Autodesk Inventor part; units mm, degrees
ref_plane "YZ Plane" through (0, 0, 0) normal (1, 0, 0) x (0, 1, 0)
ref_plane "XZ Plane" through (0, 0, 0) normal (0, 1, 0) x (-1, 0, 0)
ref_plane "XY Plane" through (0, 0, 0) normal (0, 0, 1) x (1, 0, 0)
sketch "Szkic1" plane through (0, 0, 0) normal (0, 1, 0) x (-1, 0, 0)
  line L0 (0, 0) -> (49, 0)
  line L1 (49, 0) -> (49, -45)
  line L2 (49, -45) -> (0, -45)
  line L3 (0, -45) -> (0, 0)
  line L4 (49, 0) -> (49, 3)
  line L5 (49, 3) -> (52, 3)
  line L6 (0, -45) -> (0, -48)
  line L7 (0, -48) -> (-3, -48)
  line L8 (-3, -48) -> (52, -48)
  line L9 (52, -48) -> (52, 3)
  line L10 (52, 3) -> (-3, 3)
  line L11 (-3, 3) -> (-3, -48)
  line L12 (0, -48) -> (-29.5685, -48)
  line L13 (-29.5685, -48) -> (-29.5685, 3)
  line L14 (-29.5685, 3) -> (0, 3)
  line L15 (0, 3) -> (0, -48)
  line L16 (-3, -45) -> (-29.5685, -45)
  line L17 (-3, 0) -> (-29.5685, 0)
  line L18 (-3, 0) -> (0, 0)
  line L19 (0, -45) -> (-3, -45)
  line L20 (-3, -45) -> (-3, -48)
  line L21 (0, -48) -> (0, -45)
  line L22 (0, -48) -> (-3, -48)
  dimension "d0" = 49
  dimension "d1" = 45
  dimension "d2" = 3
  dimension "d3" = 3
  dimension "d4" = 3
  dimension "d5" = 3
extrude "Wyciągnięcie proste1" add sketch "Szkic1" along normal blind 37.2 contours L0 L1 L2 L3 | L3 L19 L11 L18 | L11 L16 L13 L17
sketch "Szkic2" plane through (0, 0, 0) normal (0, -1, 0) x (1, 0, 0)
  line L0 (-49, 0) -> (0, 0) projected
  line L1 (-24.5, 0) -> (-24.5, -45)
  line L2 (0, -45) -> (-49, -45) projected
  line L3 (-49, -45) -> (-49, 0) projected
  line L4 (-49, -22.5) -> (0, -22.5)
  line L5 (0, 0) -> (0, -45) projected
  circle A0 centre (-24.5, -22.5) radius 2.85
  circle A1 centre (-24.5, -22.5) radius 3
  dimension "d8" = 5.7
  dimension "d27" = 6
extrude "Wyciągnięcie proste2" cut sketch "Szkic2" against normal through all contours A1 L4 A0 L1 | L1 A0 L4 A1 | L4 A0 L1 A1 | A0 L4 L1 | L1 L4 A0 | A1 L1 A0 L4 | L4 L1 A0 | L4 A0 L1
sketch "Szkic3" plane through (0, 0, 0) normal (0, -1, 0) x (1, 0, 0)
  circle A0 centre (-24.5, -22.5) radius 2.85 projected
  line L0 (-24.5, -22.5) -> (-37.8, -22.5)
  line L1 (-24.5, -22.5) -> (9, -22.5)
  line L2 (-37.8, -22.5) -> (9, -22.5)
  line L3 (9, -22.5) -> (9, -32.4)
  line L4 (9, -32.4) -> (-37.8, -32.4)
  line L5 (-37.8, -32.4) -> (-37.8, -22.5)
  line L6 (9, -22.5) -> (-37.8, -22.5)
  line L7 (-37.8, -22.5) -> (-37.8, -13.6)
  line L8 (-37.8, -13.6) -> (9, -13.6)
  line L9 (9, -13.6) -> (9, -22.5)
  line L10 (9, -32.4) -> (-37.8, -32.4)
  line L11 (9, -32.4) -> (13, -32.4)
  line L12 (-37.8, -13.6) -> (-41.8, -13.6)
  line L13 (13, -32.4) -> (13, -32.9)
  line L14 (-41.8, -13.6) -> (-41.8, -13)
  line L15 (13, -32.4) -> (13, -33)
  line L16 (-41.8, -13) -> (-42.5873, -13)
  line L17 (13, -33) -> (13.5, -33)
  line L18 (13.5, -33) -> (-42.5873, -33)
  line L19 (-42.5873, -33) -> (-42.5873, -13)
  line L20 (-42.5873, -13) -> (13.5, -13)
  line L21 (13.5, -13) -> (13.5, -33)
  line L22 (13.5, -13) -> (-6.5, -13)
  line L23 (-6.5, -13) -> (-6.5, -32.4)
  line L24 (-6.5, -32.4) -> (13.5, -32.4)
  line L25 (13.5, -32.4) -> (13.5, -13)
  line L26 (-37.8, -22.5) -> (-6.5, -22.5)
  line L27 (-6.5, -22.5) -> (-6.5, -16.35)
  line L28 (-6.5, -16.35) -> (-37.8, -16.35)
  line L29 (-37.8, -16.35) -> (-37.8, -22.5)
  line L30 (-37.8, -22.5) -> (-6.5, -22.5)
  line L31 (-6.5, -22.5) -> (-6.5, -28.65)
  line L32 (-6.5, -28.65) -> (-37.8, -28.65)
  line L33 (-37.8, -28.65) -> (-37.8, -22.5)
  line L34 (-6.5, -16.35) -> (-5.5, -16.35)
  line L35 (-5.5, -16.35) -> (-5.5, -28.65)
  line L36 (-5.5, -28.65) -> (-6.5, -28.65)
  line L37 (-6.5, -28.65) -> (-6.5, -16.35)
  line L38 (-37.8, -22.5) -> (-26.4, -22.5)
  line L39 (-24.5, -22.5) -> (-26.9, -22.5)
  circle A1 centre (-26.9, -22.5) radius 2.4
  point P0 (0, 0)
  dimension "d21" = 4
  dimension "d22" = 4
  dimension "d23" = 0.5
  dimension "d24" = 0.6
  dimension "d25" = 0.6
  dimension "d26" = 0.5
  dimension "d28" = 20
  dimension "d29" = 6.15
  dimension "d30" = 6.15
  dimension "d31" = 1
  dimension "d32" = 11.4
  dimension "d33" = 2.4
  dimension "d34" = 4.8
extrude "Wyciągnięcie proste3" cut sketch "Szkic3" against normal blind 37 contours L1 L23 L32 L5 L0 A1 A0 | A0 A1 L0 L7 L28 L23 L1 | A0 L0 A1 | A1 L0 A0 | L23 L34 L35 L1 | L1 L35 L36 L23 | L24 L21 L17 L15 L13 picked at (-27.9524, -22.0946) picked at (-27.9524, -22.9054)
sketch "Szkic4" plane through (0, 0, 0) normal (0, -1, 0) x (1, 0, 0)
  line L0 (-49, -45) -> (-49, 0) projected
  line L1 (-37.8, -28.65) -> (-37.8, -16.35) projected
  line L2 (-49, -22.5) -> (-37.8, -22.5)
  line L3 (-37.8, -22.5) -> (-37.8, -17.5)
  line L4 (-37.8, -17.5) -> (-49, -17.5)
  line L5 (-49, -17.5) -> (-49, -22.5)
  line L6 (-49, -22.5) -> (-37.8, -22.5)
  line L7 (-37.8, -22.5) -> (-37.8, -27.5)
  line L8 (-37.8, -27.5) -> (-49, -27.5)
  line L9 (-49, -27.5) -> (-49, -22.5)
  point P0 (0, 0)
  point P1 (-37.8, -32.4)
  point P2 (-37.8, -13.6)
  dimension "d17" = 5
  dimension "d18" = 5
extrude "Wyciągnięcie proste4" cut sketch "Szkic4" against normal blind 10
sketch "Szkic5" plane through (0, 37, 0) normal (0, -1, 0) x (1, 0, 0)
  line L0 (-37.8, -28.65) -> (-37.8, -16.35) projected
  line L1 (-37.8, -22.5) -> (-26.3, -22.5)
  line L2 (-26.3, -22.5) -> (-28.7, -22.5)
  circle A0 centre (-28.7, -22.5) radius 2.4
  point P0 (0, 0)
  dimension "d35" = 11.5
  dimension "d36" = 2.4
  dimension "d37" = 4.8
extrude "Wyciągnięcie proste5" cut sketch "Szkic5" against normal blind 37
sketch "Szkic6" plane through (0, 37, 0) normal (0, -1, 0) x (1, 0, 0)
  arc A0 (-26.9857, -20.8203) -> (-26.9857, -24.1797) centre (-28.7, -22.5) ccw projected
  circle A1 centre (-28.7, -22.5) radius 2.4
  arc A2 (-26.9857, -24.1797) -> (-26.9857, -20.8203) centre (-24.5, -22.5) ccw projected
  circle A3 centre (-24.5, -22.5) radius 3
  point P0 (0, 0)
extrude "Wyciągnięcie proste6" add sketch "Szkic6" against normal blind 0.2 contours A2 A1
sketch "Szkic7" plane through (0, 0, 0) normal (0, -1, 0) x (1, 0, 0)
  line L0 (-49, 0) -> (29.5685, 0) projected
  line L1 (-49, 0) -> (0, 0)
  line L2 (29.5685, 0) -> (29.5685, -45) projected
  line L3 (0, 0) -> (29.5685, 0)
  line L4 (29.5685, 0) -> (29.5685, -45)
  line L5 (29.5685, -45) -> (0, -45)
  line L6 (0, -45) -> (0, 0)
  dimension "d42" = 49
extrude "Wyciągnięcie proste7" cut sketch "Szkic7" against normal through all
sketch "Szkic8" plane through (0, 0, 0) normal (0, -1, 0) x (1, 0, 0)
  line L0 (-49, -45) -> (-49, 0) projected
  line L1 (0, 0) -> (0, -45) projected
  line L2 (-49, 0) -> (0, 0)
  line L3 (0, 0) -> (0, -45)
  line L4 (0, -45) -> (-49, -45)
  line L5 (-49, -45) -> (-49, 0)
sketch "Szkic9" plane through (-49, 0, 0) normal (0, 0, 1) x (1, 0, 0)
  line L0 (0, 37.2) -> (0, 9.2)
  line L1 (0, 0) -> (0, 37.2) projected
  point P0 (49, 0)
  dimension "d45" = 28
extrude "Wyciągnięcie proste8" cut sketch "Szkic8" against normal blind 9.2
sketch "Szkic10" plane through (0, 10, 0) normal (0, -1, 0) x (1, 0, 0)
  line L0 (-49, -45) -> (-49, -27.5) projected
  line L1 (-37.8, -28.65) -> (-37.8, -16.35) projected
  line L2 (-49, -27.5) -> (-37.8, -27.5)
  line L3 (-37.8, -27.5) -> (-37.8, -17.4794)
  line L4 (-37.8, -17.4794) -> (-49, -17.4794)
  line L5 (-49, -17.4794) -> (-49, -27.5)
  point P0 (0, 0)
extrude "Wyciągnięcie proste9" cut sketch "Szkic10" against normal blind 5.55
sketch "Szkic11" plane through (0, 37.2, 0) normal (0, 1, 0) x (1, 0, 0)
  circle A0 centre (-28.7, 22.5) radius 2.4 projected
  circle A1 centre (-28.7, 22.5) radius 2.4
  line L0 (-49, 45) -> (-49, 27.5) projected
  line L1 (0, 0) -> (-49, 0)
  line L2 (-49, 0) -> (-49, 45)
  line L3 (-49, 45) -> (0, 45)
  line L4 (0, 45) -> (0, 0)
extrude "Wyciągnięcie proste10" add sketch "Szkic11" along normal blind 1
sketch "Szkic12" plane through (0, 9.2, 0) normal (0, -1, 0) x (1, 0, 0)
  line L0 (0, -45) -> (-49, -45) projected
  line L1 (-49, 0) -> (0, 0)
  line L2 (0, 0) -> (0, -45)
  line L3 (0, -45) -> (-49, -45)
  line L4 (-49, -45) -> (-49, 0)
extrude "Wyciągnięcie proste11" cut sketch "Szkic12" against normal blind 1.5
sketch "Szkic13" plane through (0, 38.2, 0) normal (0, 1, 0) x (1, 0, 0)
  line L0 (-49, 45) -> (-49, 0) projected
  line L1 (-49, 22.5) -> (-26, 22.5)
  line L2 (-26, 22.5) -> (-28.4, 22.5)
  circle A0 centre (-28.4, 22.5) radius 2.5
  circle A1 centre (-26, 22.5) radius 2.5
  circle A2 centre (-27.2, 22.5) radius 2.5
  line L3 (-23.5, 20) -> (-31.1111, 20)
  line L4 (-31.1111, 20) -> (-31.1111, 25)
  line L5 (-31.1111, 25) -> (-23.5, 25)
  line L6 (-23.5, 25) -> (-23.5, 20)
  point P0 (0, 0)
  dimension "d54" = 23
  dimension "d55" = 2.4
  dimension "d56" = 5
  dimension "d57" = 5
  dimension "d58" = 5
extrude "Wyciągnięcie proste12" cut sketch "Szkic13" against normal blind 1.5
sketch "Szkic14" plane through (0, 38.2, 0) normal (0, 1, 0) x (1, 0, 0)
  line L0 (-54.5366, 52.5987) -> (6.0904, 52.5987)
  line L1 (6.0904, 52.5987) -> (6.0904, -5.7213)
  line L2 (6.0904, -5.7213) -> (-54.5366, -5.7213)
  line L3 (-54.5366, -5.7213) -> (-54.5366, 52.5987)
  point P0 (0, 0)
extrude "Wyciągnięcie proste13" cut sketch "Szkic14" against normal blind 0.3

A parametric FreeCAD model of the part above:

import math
import FreeCAD as App
import Part
import Sketcher


def add_polygon(sketch, points):
    """Adds a closed chain of lines whose ends are joined by coincident constraints."""
    first, n = sketch.GeometryCount, len(points)
    for a, b in zip(points, points[1:] + points[:1]):
        sketch.addGeometry(Part.LineSegment(App.Vector(*a, 0), App.Vector(*b, 0)), False)
    for i in range(n):
        sketch.addConstraint(Sketcher.Constraint("Coincident", first + i, 2, first + (i + 1) % n, 1))

doc = App.newDocument("Part")
body = doc.addObject("PartDesign::Body", "Body")

# Sketch on XZ plane
sketch1 = body.newObject("Sketcher::SketchObject", "Sketch")
sketch1.AttachmentSupport = (doc.getObject("XZ_Plane"), [""])
sketch1.MapMode = "FlatFace"
add_polygon(sketch1, [(-49, 0), (29.5685, 0), (29.5685, -45), (-49, -45)])  # lines 0-3
sketch1.addConstraint([
    Sketcher.Constraint("Horizontal", 0),
    Sketcher.Constraint("Vertical", 1),
    Sketcher.Constraint("Horizontal", 2),
    Sketcher.Constraint("Vertical", 3),
    Sketcher.Constraint("PointOnObject", 0, 2, -1),
    Sketcher.Constraint("DistanceY", 1, 2, 1, 1, 45.0),
    Sketcher.Constraint("DistanceX", 2, 2, -1, 1, 49.0),
    Sketcher.Constraint("DistanceX", 0, 1, 0, 2, 78.5685),
])
pad1 = body.newObject("PartDesign::Pad", "Pad")
pad1.Profile = sketch1
pad1.Length = 37.2
pad1.Reversed = True

# Sketch on XZ plane
sketch2 = body.newObject("Sketcher::SketchObject", "Sketch001")
sketch2.AttachmentSupport = (doc.getObject("XZ_Plane"), [""])
sketch2.MapMode = "FlatFace"
sketch2.addGeometry(Part.Circle(App.Vector(-24.5, -22.5, 0), App.Vector(0, 0, 1), 3), False)
sketch2.addConstraint([
    Sketcher.Constraint("Diameter", 0, 6.0),
    Sketcher.Constraint("DistanceX", 0, 3, -1, 1, 24.5),
    Sketcher.Constraint("DistanceY", 0, 3, -1, 1, 22.5),
])
pocket1 = body.newObject("PartDesign::Pocket", "Pocket")
pocket1.Profile = sketch2
pocket1.Type = "ThroughAll"

# Sketch on XZ plane
sketch3 = body.newObject("Sketcher::SketchObject", "Sketch002")
sketch3.AttachmentSupport = (doc.getObject("XZ_Plane"), [""])
sketch3.MapMode = "FlatFace"
add_polygon(sketch3, [(-37.8, -28.65), (-5.5, -28.65), (-5.5, -16.35), (-37.8, -16.35)])  # lines 0-3
sketch3.addGeometry(Part.Circle(App.Vector(-24.5, -22.5, 0), App.Vector(0, 0, 1), 2.85), False)  # 4
add_polygon(sketch3, [(13.5, -32.4), (13, -32.4), (13, -33), (13.5, -33)])  # lines 5-8
sketch3.addConstraint([
    Sketcher.Constraint("Horizontal", 0),
    Sketcher.Constraint("Vertical", 1),
    Sketcher.Constraint("Horizontal", 2),
    Sketcher.Constraint("Vertical", 3),
    Sketcher.Constraint("Horizontal", 5),
    Sketcher.Constraint("Vertical", 6),
    Sketcher.Constraint("Horizontal", 7),
    Sketcher.Constraint("Vertical", 8),
    Sketcher.Constraint("DistanceX", 5, 2, 5, 1, 0.5),
    Sketcher.Constraint("DistanceY", 6, 2, 6, 1, 0.6),
    Sketcher.Constraint("Diameter", 4, 5.7),
    Sketcher.Constraint("DistanceY", 0, 2, 4, 3, 6.15),
    Sketcher.Constraint("DistanceY", 4, 3, 1, 2, 6.15),
    Sketcher.Constraint("DistanceX", 0, 1, 0, 2, 32.3),
    Sketcher.Constraint("DistanceX", -1, 1, 5, 2, 13.0),
    Sketcher.Constraint("DistanceY", 6, 2, -1, 1, 33.0),
    Sketcher.Constraint("DistanceX", 4, 3, 0, 2, 19.0),
    Sketcher.Constraint("DistanceX", 0, 2, 7, 2, 19.0),
    Sketcher.Constraint("DistanceY", 4, 3, -1, 1, 22.5),
])
pocket2 = body.newObject("PartDesign::Pocket", "Pocket001")
pocket2.Profile = sketch3
pocket2.Length = 37

# Sketch on XZ plane
sketch4 = body.newObject("Sketcher::SketchObject", "Sketch003")
sketch4.AttachmentSupport = (doc.getObject("XZ_Plane"), [""])
sketch4.MapMode = "FlatFace"
add_polygon(sketch4, [(-49, -27.5), (-37.8, -27.5), (-37.8, -17.5), (-49, -17.5)])  # lines 0-3
sketch4.addConstraint([
    Sketcher.Constraint("Horizontal", 0),
    Sketcher.Constraint("Vertical", 1),
    Sketcher.Constraint("Horizontal", 2),
    Sketcher.Constraint("Vertical", 3),
    Sketcher.Constraint("DistanceY", 1, 1, 1, 2, 10.0),
    Sketcher.Constraint("DistanceX", 0, 1, 0, 2, 11.2),
    Sketcher.Constraint("DistanceX", 2, 2, -1, 1, 49.0),
    Sketcher.Constraint("DistanceY", 0, 2, -1, 1, 27.5),
])
pocket3 = body.newObject("PartDesign::Pocket", "Pocket002")
pocket3.Profile = sketch4
pocket3.Length = 10

# Sketch on XZ plane
sketch5 = body.newObject("Sketcher::SketchObject", "Sketch004")
sketch5.AttachmentSupport = (doc.getObject("XZ_Plane"), [""])
sketch5.MapMode = "FlatFace"
sketch5.AttachmentOffset = App.Placement(App.Vector(0, 0, -37), App.Rotation())
sketch5.addGeometry(Part.Circle(App.Vector(-28.7, -22.5, 0), App.Vector(0, 0, 1), 2.4), False)
sketch5.addConstraint([
    Sketcher.Constraint("Diameter", 0, 4.8),
    Sketcher.Constraint("DistanceX", 0, 3, -1, 1, 28.7),
    Sketcher.Constraint("DistanceY", 0, 3, -1, 1, 22.5),
])
pocket4 = body.newObject("PartDesign::Pocket", "Pocket003")
pocket4.Profile = sketch5
pocket4.Length = 37

# Sketch on XZ plane
sketch6 = body.newObject("Sketcher::SketchObject", "Sketch005")
sketch6.AttachmentSupport = (doc.getObject("XZ_Plane"), [""])
sketch6.MapMode = "FlatFace"
sketch6.AttachmentOffset = App.Placement(App.Vector(0, 0, -37), App.Rotation())
sketch6.addGeometry([
    Part.ArcOfCircle(Part.Circle(App.Vector(-24.5, -22.5, 0), App.Vector(0, 0, 1), 3.000016), math.radians(-145.951325), math.radians(145.951325)),
    Part.ArcOfCircle(Part.Circle(App.Vector(-28.7, -22.5, 0), App.Vector(0, 0, 1), 2.4), math.radians(-44.415921), math.radians(44.415921)),
], False)
sketch6.addConstraint([
    Sketcher.Constraint("Coincident", 0, 1, 1, 1),
    Sketcher.Constraint("Coincident", 1, 2, 0, 2),
    Sketcher.Constraint("Horizontal", 0, 3, 1, 3),
    Sketcher.Constraint("Radius", 0, 3.0),
    Sketcher.Constraint("Radius", 1, 2.4),
    Sketcher.Constraint("DistanceX", 0, 3, -1, 1, 24.5),
    Sketcher.Constraint("DistanceY", 0, 3, -1, 1, 22.5),
    Sketcher.Constraint("DistanceX", 1, 3, -1, 1, 28.7),
])
pad2 = body.newObject("PartDesign::Pad", "Pad001")
pad2.Profile = sketch6
pad2.Length = 0.2
pad2.Reversed = True

# Sketch on XZ plane
sketch7 = body.newObject("Sketcher::SketchObject", "Sketch006")
sketch7.AttachmentSupport = (doc.getObject("XZ_Plane"), [""])
sketch7.MapMode = "FlatFace"
add_polygon(sketch7, [(29.5685, 0), (0, 0), (0, -45), (29.5685, -45)])  # lines 0-3
sketch7.addConstraint([
    Sketcher.Constraint("Horizontal", 0),
    Sketcher.Constraint("Vertical", 1),
    Sketcher.Constraint("Horizontal", 2),
    Sketcher.Constraint("Vertical", 3),
    Sketcher.Constraint("Coincident", 0, 2, -1, 1),
    Sketcher.Constraint("DistanceY", 1, 2, 1, 1, 45.0),
    Sketcher.Constraint("DistanceX", 0, 2, 0, 1, 29.5685),
])
pocket5 = body.newObject("PartDesign::Pocket", "Pocket004")
pocket5.Profile = sketch7
pocket5.Type = "ThroughAll"

# Sketch on XZ plane
sketch8 = body.newObject("Sketcher::SketchObject", "Sketch007")
sketch8.AttachmentSupport = (doc.getObject("XZ_Plane"), [""])
sketch8.MapMode = "FlatFace"
add_polygon(sketch8, [(-49, 0), (-49, -45), (0, -45), (0, 0)])  # lines 0-3
sketch8.addConstraint([
    Sketcher.Constraint("Vertical", 0),
    Sketcher.Constraint("Horizontal", 1),
    Sketcher.Constraint("Vertical", 2),
    Sketcher.Constraint("Horizontal", 3),
    Sketcher.Constraint("Coincident", 2, 2, -1, 1),
    Sketcher.Constraint("DistanceX", 1, 1, 1, 2, 49.0),
    Sketcher.Constraint("DistanceY", 0, 2, 0, 1, 45.0),
])
pocket6 = body.newObject("PartDesign::Pocket", "Pocket005")
pocket6.Profile = sketch8
pocket6.Length = 9.2

# Sketch on XZ plane
sketch9 = body.newObject("Sketcher::SketchObject", "Sketch008")
sketch9.AttachmentSupport = (doc.getObject("XZ_Plane"), [""])
sketch9.MapMode = "FlatFace"
sketch9.AttachmentOffset = App.Placement(App.Vector(0, 0, -10), App.Rotation())
add_polygon(sketch9, [(-49, -27.5), (-37.8, -27.5), (-37.8, -17.4794), (-49, -17.4794)])  # lines 0-3
sketch9.addConstraint([
    Sketcher.Constraint("Horizontal", 0),
    Sketcher.Constraint("Vertical", 1),
    Sketcher.Constraint("Horizontal", 2),
    Sketcher.Constraint("Vertical", 3),
    Sketcher.Constraint("DistanceX", 0, 1, 0, 2, 11.2),
    Sketcher.Constraint("DistanceX", 2, 2, -1, 1, 49.0),
    Sketcher.Constraint("DistanceY", 0, 2, -1, 1, 27.5),
    Sketcher.Constraint("DistanceY", 1, 1, 1, 2, 10.0206),
])
pocket7 = body.newObject("PartDesign::Pocket", "Pocket006")
pocket7.Profile = sketch9
pocket7.Length = 5.55

# Sketch on XZ plane
sketch10 = body.newObject("Sketcher::SketchObject", "Sketch009")
sketch10.AttachmentSupport = (doc.getObject("XZ_Plane"), [""])
sketch10.MapMode = "FlatFace"
sketch10.AttachmentOffset = App.Placement(App.Vector(0, 0, -37.2), App.Rotation())
add_polygon(sketch10, [(0, -45), (-49, -45), (-49, 0), (0, 0)])  # lines 0-3
sketch10.addGeometry(Part.Circle(App.Vector(-28.7, -22.5, 0), App.Vector(0, 0, 1), 2.4), False)  # 4
sketch10.addConstraint([
    Sketcher.Constraint("Horizontal", 0),
    Sketcher.Constraint("Vertical", 1),
    Sketcher.Constraint("Horizontal", 2),
    Sketcher.Constraint("Vertical", 3),
    Sketcher.Constraint("Coincident", 2, 2, -1, 1),
    Sketcher.Constraint("Diameter", 4, 4.8),
    Sketcher.Constraint("DistanceX", 0, 2, 0, 1, 49.0),
    Sketcher.Constraint("DistanceY", 1, 1, 1, 2, 45.0),
    Sketcher.Constraint("DistanceX", 4, 3, -1, 1, 28.7),
    Sketcher.Constraint("DistanceY", 4, 3, -1, 1, 22.5),
])
pad3 = body.newObject("PartDesign::Pad", "Pad002")
pad3.Profile = sketch10
pad3.Length = 1
pad3.Reversed = True

# Sketch on XZ plane
sketch11 = body.newObject("Sketcher::SketchObject", "Sketch010")
sketch11.AttachmentSupport = (doc.getObject("XZ_Plane"), [""])
sketch11.MapMode = "FlatFace"
sketch11.AttachmentOffset = App.Placement(App.Vector(0, 0, -9.2), App.Rotation())
add_polygon(sketch11, [(-49, -45), (0, -45), (0, 0), (-49, 0)])  # lines 0-3
sketch11.addConstraint([
    Sketcher.Constraint("Horizontal", 0),
    Sketcher.Constraint("Vertical", 1),
    Sketcher.Constraint("Horizontal", 2),
    Sketcher.Constraint("Vertical", 3),
    Sketcher.Constraint("Coincident", 1, 2, -1, 1),
    Sketcher.Constraint("DistanceX", 0, 1, 0, 2, 49.0),
    Sketcher.Constraint("DistanceY", 1, 1, 1, 2, 45.0),
])
pocket8 = body.newObject("PartDesign::Pocket", "Pocket007")
pocket8.Profile = sketch11
pocket8.Length = 1.5

# Sketch on XZ plane
sketch12 = body.newObject("Sketcher::SketchObject", "Sketch011")
sketch12.AttachmentSupport = (doc.getObject("XZ_Plane"), [""])
sketch12.MapMode = "FlatFace"
sketch12.AttachmentOffset = App.Placement(App.Vector(0, 0, -38.2), App.Rotation())
add_polygon(sketch12, [(-31.1111, -25), (-31.1111, -20), (-23.5, -20), (-23.5, -25)])  # lines 0-3
sketch12.addConstraint([
    Sketcher.Constraint("Vertical", 0),
    Sketcher.Constraint("Horizontal", 1),
    Sketcher.Constraint("Vertical", 2),
    Sketcher.Constraint("Horizontal", 3),
    Sketcher.Constraint("DistanceY", 0, 1, 0, 2, 5.0),
    Sketcher.Constraint("DistanceY", 0, 2, -1, 1, 20.0),
    Sketcher.Constraint("DistanceX", 1, 2, -1, 1, 23.5),
    Sketcher.Constraint("DistanceX", 1, 1, 1, 2, 7.611),
])
pocket9 = body.newObject("PartDesign::Pocket", "Pocket008")
pocket9.Profile = sketch12
pocket9.Length = 1.5
pocket9.Reversed = True

# Sketch on XZ plane
sketch13 = body.newObject("Sketcher::SketchObject", "Sketch012")
sketch13.AttachmentSupport = (doc.getObject("XZ_Plane"), [""])
sketch13.MapMode = "FlatFace"
sketch13.AttachmentOffset = App.Placement(App.Vector(0, 0, -38.2), App.Rotation())
add_polygon(sketch13, [(6.0904, -52.5987), (-54.5366, -52.5987), (-54.5366, 5.7213), (6.0904, 5.7213)])  # lines 0-3
sketch13.addConstraint([
    Sketcher.Constraint("Horizontal", 0),
    Sketcher.Constraint("Vertical", 1),
    Sketcher.Constraint("Horizontal", 2),
    Sketcher.Constraint("Vertical", 3),
    Sketcher.Constraint("DistanceY", 1, 1, 1, 2, 58.32),
    Sketcher.Constraint("DistanceX", 0, 2, 0, 1, 60.627),
    Sketcher.Constraint("DistanceX", 0, 2, -1, 1, 54.5366),
    Sketcher.Constraint("DistanceY", 0, 2, -1, 1, 52.5987),
])
pocket10 = body.newObject("PartDesign::Pocket", "Pocket009")
pocket10.Profile = sketch13
pocket10.Length = 0.3
pocket10.Reversed = True

doc.recompute()
